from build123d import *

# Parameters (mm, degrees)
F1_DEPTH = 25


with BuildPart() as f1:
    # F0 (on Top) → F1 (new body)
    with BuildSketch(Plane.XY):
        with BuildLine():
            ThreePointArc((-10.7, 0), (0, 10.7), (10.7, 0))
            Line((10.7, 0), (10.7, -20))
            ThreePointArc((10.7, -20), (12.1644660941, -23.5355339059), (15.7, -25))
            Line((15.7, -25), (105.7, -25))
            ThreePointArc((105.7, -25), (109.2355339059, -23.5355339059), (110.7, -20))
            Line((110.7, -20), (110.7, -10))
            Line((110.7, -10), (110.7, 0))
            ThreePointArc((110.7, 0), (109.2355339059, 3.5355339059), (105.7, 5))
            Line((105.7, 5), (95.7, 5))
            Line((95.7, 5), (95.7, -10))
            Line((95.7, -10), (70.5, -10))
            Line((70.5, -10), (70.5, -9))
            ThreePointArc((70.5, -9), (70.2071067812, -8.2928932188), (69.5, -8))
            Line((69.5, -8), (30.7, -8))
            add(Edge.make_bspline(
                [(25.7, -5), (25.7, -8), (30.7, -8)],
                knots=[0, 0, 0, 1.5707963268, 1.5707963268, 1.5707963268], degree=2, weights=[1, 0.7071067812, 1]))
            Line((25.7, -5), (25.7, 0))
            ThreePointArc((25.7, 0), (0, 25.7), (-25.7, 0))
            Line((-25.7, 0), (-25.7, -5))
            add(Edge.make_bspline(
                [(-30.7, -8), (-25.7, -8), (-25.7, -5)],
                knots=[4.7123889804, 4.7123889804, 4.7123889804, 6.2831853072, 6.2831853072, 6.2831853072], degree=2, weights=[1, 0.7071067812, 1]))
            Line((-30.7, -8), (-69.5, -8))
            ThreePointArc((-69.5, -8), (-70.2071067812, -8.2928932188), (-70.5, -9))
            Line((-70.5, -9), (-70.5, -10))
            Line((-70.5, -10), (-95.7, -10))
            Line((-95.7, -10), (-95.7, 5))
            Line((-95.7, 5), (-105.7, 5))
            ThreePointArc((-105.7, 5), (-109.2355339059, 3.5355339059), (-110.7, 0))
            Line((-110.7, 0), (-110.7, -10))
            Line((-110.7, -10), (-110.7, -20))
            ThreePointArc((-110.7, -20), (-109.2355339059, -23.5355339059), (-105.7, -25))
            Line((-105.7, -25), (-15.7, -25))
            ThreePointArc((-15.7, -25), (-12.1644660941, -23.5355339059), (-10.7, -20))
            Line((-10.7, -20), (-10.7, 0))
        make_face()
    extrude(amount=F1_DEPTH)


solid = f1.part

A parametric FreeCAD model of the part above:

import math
import FreeCAD as App
import Part
import Sketcher
Q = App.Units.Quantity

doc = App.newDocument("Part")
body = doc.addObject("PartDesign::Body", "Body")

# Sketch on XY plane
sketch1 = doc.addObject("Sketcher::SketchObject", "Sketch")
body.addObject(sketch1)
sketch1.AttachmentSupport = (doc.XY_Plane, [""])
sketch1.MapMode = "FlatFace"
sketch1.addGeometry([
    Part.ArcOfCircle(Part.Circle(App.Vector(0, 0, 0), App.Vector(0, 0, 1), 10.7), math.radians(0), math.radians(180)),  # 0
    Part.LineSegment(App.Vector(10.7, 0, 0), App.Vector(10.7, -20, 0)),  # 1
    Part.ArcOfCircle(Part.Circle(App.Vector(15.7, -20, 0), App.Vector(0, 0, 1), 5), math.radians(180), math.radians(270)),  # 2
    Part.LineSegment(App.Vector(15.7, -25, 0), App.Vector(105.7, -25, 0)),  # 3
    Part.ArcOfCircle(Part.Circle(App.Vector(105.7, -20, 0), App.Vector(0, 0, 1), 5), math.radians(-90), math.radians(0)),  # 4
    Part.LineSegment(App.Vector(110.7, -20, 0), App.Vector(110.7, 0, 0)),  # 5
    Part.ArcOfCircle(Part.Circle(App.Vector(105.7, 0, 0), App.Vector(0, 0, 1), 5), math.radians(0), math.radians(90)),  # 6
    Part.LineSegment(App.Vector(105.7, 5, 0), App.Vector(95.7, 5, 0)),  # 7
    Part.LineSegment(App.Vector(95.7, 5, 0), App.Vector(95.7, -10, 0)),  # 8
    Part.LineSegment(App.Vector(95.7, -10, 0), App.Vector(70.5, -10, 0)),  # 9
    Part.LineSegment(App.Vector(70.5, -10, 0), App.Vector(70.5, -9, 0)),  # 10
    Part.ArcOfCircle(Part.Circle(App.Vector(69.5, -9, 0), App.Vector(0, 0, 1), 1), math.radians(0), math.radians(90)),  # 11
    Part.LineSegment(App.Vector(69.5, -8, 0), App.Vector(30.7, -8, 0)),  # 12
    Part.BSplineCurve([App.Vector(25.7, -5, 0), App.Vector(25.7, -8, 0), App.Vector(30.7, -8, 0)], [3, 3], [0, 1.570796327], False, 2, [1, 0.707106781, 1], False),  # 13
    Part.LineSegment(App.Vector(25.7, -5, 0), App.Vector(25.7, 0, 0)),  # 14
    Part.ArcOfCircle(Part.Circle(App.Vector(0, 0, 0), App.Vector(0, 0, 1), 25.7), math.radians(0), math.radians(180)),  # 15
    Part.LineSegment(App.Vector(-25.7, 0, 0), App.Vector(-25.7, -5, 0)),  # 16
    Part.BSplineCurve([App.Vector(-30.7, -8, 0), App.Vector(-25.7, -8, 0), App.Vector(-25.7, -5, 0)], [3, 3], [4.71238898, 6.283185307], False, 2, [1, 0.707106781, 1], False),  # 17
    Part.LineSegment(App.Vector(-30.7, -8, 0), App.Vector(-69.5, -8, 0)),  # 18
    Part.ArcOfCircle(Part.Circle(App.Vector(-69.5, -9, 0), App.Vector(0, 0, 1), 1), math.radians(90), math.radians(180)),  # 19
    Part.LineSegment(App.Vector(-70.5, -9, 0), App.Vector(-70.5, -10, 0)),  # 20
    Part.LineSegment(App.Vector(-70.5, -10, 0), App.Vector(-95.7, -10, 0)),  # 21
    Part.LineSegment(App.Vector(-95.7, -10, 0), App.Vector(-95.7, 5, 0)),  # 22
    Part.LineSegment(App.Vector(-95.7, 5, 0), App.Vector(-105.7, 5, 0)),  # 23
    Part.ArcOfCircle(Part.Circle(App.Vector(-105.7, 0, 0), App.Vector(0, 0, 1), 5), math.radians(90), math.radians(180)),  # 24
    Part.LineSegment(App.Vector(-110.7, 0, 0), App.Vector(-110.7, -20, 0)),  # 25
    Part.ArcOfCircle(Part.Circle(App.Vector(-105.7, -20, 0), App.Vector(0, 0, 1), 5), math.radians(180), math.radians(270)),  # 26
    Part.LineSegment(App.Vector(-105.7, -25, 0), App.Vector(-15.7, -25, 0)),  # 27
    Part.ArcOfCircle(Part.Circle(App.Vector(-15.7, -20, 0), App.Vector(0, 0, 1), 5), math.radians(-90), math.radians(0)),  # 28
    Part.LineSegment(App.Vector(-10.7, -20, 0), App.Vector(-10.7, 0, 0)),  # 29
], False)
sketch1.addConstraint([
    Sketcher.Constraint("Block", 13),
    Sketcher.Constraint("Block", 17),
    Sketcher.Constraint("Tangent", 0, 1, 1, 1),
    Sketcher.Constraint("Tangent", 1, 2, 2, 1),
    Sketcher.Constraint("Tangent", 2, 2, 3, 1),
    Sketcher.Constraint("Tangent", 3, 2, 4, 1),
    Sketcher.Constraint("Tangent", 4, 2, 5, 1),
    Sketcher.Constraint("Tangent", 5, 2, 6, 1),
    Sketcher.Constraint("Tangent", 6, 2, 7, 1),
    Sketcher.Constraint("Coincident", 7, 2, 8, 1),
    Sketcher.Constraint("Coincident", 8, 2, 9, 1),
    Sketcher.Constraint("Coincident", 9, 2, 10, 1),
    Sketcher.Constraint("Tangent", 10, 2, 11, 1),
    Sketcher.Constraint("Tangent", 11, 2, 12, 1),
    Sketcher.Constraint("Coincident", 12, 2, 13, 2),
    Sketcher.Constraint("Coincident", 13, 1, 14, 1),
    Sketcher.Constraint("Tangent", 14, 2, 15, 1),
    Sketcher.Constraint("Tangent", 15, 2, 16, 1),
    Sketcher.Constraint("Coincident", 16, 2, 17, 2),
    Sketcher.Constraint("Coincident", 17, 1, 18, 1),
    Sketcher.Constraint("Tangent", 18, 2, 19, 1),
    Sketcher.Constraint("Tangent", 19, 2, 20, 1),
    Sketcher.Constraint("Coincident", 20, 2, 21, 1),
    Sketcher.Constraint("Coincident", 21, 2, 22, 1),
    Sketcher.Constraint("Coincident", 22, 2, 23, 1),
    Sketcher.Constraint("Tangent", 23, 2, 24, 1),
    Sketcher.Constraint("Tangent", 24, 2, 25, 1),
    Sketcher.Constraint("Tangent", 25, 2, 26, 1),
    Sketcher.Constraint("Tangent", 26, 2, 27, 1),
    Sketcher.Constraint("Tangent", 27, 2, 28, 1),
    Sketcher.Constraint("Tangent", 28, 2, 29, 1),
    Sketcher.Constraint("Tangent", 29, 2, 0, 2),
    Sketcher.Constraint("Vertical", 1),
    Sketcher.Constraint("Horizontal", 3),
    Sketcher.Constraint("Vertical", 5),
    Sketcher.Constraint("Horizontal", 7),
    Sketcher.Constraint("Vertical", 8),
    Sketcher.Constraint("Horizontal", 9),
    Sketcher.Constraint("Vertical", 10),
    Sketcher.Constraint("Horizontal", 12),
    Sketcher.Constraint("Vertical", 14),
    Sketcher.Constraint("Vertical", 16),
    Sketcher.Constraint("Horizontal", 18),
    Sketcher.Constraint("Vertical", 20),
    Sketcher.Constraint("Horizontal", 21),
    Sketcher.Constraint("Vertical", 22),
    Sketcher.Constraint("Horizontal", 23),
    Sketcher.Constraint("Vertical", 25),
    Sketcher.Constraint("Horizontal", 27),
    Sketcher.Constraint("Vertical", 29),
    Sketcher.Constraint("Coincident", 0, 3, -1, 1),
    Sketcher.Constraint("Equal", 2, 4),
    Sketcher.Constraint("Equal", 4, 6),
    Sketcher.Constraint("Equal", 11, 19),
    Sketcher.Constraint("Equal", 6, 24),
    Sketcher.Constraint("Equal", 24, 26),
    Sketcher.Constraint("Equal", 26, 28),
    Sketcher.Constraint("Symmetric", 6, 3, 24, 3, -1, 1),
    Sketcher.Constraint("Symmetric", 9, 2, 20, 2, -2),
    Sketcher.Constraint("Symmetric", 7, 2, 22, 2, -2),
    Sketcher.Constraint("PointOnObject", 14, 2, -1),
    Sketcher.Constraint("Horizontal", 4, 3, 26, 3),
    Sketcher.Constraint("Radius", 2, Q("5 mm")),
    Sketcher.Constraint("Radius", 11, Q("1 mm")),
    Sketcher.Constraint("Radius", 0, Q("10.7 mm")),
    Sketcher.Constraint("DistanceX", 3, 1, 3, 2, Q("90 mm")),
    Sketcher.Constraint("DistanceX", 7, 2, 7, 1, Q("10 mm")),
    Sketcher.Constraint("DistanceY", 1, 2, 1, 1, Q("20 mm")),
    Sketcher.Constraint("DistanceY", 8, 2, 8, 1, Q("15 mm")),
    Sketcher.Constraint("DistanceX", 9, 2, 9, 1, Q("25.2 mm")),
])
pad1 = doc.addObject("PartDesign::Pad", "Pad")
body.addObject(pad1)
pad1.Profile = sketch1
pad1.Length = 25

doc.recompute()
